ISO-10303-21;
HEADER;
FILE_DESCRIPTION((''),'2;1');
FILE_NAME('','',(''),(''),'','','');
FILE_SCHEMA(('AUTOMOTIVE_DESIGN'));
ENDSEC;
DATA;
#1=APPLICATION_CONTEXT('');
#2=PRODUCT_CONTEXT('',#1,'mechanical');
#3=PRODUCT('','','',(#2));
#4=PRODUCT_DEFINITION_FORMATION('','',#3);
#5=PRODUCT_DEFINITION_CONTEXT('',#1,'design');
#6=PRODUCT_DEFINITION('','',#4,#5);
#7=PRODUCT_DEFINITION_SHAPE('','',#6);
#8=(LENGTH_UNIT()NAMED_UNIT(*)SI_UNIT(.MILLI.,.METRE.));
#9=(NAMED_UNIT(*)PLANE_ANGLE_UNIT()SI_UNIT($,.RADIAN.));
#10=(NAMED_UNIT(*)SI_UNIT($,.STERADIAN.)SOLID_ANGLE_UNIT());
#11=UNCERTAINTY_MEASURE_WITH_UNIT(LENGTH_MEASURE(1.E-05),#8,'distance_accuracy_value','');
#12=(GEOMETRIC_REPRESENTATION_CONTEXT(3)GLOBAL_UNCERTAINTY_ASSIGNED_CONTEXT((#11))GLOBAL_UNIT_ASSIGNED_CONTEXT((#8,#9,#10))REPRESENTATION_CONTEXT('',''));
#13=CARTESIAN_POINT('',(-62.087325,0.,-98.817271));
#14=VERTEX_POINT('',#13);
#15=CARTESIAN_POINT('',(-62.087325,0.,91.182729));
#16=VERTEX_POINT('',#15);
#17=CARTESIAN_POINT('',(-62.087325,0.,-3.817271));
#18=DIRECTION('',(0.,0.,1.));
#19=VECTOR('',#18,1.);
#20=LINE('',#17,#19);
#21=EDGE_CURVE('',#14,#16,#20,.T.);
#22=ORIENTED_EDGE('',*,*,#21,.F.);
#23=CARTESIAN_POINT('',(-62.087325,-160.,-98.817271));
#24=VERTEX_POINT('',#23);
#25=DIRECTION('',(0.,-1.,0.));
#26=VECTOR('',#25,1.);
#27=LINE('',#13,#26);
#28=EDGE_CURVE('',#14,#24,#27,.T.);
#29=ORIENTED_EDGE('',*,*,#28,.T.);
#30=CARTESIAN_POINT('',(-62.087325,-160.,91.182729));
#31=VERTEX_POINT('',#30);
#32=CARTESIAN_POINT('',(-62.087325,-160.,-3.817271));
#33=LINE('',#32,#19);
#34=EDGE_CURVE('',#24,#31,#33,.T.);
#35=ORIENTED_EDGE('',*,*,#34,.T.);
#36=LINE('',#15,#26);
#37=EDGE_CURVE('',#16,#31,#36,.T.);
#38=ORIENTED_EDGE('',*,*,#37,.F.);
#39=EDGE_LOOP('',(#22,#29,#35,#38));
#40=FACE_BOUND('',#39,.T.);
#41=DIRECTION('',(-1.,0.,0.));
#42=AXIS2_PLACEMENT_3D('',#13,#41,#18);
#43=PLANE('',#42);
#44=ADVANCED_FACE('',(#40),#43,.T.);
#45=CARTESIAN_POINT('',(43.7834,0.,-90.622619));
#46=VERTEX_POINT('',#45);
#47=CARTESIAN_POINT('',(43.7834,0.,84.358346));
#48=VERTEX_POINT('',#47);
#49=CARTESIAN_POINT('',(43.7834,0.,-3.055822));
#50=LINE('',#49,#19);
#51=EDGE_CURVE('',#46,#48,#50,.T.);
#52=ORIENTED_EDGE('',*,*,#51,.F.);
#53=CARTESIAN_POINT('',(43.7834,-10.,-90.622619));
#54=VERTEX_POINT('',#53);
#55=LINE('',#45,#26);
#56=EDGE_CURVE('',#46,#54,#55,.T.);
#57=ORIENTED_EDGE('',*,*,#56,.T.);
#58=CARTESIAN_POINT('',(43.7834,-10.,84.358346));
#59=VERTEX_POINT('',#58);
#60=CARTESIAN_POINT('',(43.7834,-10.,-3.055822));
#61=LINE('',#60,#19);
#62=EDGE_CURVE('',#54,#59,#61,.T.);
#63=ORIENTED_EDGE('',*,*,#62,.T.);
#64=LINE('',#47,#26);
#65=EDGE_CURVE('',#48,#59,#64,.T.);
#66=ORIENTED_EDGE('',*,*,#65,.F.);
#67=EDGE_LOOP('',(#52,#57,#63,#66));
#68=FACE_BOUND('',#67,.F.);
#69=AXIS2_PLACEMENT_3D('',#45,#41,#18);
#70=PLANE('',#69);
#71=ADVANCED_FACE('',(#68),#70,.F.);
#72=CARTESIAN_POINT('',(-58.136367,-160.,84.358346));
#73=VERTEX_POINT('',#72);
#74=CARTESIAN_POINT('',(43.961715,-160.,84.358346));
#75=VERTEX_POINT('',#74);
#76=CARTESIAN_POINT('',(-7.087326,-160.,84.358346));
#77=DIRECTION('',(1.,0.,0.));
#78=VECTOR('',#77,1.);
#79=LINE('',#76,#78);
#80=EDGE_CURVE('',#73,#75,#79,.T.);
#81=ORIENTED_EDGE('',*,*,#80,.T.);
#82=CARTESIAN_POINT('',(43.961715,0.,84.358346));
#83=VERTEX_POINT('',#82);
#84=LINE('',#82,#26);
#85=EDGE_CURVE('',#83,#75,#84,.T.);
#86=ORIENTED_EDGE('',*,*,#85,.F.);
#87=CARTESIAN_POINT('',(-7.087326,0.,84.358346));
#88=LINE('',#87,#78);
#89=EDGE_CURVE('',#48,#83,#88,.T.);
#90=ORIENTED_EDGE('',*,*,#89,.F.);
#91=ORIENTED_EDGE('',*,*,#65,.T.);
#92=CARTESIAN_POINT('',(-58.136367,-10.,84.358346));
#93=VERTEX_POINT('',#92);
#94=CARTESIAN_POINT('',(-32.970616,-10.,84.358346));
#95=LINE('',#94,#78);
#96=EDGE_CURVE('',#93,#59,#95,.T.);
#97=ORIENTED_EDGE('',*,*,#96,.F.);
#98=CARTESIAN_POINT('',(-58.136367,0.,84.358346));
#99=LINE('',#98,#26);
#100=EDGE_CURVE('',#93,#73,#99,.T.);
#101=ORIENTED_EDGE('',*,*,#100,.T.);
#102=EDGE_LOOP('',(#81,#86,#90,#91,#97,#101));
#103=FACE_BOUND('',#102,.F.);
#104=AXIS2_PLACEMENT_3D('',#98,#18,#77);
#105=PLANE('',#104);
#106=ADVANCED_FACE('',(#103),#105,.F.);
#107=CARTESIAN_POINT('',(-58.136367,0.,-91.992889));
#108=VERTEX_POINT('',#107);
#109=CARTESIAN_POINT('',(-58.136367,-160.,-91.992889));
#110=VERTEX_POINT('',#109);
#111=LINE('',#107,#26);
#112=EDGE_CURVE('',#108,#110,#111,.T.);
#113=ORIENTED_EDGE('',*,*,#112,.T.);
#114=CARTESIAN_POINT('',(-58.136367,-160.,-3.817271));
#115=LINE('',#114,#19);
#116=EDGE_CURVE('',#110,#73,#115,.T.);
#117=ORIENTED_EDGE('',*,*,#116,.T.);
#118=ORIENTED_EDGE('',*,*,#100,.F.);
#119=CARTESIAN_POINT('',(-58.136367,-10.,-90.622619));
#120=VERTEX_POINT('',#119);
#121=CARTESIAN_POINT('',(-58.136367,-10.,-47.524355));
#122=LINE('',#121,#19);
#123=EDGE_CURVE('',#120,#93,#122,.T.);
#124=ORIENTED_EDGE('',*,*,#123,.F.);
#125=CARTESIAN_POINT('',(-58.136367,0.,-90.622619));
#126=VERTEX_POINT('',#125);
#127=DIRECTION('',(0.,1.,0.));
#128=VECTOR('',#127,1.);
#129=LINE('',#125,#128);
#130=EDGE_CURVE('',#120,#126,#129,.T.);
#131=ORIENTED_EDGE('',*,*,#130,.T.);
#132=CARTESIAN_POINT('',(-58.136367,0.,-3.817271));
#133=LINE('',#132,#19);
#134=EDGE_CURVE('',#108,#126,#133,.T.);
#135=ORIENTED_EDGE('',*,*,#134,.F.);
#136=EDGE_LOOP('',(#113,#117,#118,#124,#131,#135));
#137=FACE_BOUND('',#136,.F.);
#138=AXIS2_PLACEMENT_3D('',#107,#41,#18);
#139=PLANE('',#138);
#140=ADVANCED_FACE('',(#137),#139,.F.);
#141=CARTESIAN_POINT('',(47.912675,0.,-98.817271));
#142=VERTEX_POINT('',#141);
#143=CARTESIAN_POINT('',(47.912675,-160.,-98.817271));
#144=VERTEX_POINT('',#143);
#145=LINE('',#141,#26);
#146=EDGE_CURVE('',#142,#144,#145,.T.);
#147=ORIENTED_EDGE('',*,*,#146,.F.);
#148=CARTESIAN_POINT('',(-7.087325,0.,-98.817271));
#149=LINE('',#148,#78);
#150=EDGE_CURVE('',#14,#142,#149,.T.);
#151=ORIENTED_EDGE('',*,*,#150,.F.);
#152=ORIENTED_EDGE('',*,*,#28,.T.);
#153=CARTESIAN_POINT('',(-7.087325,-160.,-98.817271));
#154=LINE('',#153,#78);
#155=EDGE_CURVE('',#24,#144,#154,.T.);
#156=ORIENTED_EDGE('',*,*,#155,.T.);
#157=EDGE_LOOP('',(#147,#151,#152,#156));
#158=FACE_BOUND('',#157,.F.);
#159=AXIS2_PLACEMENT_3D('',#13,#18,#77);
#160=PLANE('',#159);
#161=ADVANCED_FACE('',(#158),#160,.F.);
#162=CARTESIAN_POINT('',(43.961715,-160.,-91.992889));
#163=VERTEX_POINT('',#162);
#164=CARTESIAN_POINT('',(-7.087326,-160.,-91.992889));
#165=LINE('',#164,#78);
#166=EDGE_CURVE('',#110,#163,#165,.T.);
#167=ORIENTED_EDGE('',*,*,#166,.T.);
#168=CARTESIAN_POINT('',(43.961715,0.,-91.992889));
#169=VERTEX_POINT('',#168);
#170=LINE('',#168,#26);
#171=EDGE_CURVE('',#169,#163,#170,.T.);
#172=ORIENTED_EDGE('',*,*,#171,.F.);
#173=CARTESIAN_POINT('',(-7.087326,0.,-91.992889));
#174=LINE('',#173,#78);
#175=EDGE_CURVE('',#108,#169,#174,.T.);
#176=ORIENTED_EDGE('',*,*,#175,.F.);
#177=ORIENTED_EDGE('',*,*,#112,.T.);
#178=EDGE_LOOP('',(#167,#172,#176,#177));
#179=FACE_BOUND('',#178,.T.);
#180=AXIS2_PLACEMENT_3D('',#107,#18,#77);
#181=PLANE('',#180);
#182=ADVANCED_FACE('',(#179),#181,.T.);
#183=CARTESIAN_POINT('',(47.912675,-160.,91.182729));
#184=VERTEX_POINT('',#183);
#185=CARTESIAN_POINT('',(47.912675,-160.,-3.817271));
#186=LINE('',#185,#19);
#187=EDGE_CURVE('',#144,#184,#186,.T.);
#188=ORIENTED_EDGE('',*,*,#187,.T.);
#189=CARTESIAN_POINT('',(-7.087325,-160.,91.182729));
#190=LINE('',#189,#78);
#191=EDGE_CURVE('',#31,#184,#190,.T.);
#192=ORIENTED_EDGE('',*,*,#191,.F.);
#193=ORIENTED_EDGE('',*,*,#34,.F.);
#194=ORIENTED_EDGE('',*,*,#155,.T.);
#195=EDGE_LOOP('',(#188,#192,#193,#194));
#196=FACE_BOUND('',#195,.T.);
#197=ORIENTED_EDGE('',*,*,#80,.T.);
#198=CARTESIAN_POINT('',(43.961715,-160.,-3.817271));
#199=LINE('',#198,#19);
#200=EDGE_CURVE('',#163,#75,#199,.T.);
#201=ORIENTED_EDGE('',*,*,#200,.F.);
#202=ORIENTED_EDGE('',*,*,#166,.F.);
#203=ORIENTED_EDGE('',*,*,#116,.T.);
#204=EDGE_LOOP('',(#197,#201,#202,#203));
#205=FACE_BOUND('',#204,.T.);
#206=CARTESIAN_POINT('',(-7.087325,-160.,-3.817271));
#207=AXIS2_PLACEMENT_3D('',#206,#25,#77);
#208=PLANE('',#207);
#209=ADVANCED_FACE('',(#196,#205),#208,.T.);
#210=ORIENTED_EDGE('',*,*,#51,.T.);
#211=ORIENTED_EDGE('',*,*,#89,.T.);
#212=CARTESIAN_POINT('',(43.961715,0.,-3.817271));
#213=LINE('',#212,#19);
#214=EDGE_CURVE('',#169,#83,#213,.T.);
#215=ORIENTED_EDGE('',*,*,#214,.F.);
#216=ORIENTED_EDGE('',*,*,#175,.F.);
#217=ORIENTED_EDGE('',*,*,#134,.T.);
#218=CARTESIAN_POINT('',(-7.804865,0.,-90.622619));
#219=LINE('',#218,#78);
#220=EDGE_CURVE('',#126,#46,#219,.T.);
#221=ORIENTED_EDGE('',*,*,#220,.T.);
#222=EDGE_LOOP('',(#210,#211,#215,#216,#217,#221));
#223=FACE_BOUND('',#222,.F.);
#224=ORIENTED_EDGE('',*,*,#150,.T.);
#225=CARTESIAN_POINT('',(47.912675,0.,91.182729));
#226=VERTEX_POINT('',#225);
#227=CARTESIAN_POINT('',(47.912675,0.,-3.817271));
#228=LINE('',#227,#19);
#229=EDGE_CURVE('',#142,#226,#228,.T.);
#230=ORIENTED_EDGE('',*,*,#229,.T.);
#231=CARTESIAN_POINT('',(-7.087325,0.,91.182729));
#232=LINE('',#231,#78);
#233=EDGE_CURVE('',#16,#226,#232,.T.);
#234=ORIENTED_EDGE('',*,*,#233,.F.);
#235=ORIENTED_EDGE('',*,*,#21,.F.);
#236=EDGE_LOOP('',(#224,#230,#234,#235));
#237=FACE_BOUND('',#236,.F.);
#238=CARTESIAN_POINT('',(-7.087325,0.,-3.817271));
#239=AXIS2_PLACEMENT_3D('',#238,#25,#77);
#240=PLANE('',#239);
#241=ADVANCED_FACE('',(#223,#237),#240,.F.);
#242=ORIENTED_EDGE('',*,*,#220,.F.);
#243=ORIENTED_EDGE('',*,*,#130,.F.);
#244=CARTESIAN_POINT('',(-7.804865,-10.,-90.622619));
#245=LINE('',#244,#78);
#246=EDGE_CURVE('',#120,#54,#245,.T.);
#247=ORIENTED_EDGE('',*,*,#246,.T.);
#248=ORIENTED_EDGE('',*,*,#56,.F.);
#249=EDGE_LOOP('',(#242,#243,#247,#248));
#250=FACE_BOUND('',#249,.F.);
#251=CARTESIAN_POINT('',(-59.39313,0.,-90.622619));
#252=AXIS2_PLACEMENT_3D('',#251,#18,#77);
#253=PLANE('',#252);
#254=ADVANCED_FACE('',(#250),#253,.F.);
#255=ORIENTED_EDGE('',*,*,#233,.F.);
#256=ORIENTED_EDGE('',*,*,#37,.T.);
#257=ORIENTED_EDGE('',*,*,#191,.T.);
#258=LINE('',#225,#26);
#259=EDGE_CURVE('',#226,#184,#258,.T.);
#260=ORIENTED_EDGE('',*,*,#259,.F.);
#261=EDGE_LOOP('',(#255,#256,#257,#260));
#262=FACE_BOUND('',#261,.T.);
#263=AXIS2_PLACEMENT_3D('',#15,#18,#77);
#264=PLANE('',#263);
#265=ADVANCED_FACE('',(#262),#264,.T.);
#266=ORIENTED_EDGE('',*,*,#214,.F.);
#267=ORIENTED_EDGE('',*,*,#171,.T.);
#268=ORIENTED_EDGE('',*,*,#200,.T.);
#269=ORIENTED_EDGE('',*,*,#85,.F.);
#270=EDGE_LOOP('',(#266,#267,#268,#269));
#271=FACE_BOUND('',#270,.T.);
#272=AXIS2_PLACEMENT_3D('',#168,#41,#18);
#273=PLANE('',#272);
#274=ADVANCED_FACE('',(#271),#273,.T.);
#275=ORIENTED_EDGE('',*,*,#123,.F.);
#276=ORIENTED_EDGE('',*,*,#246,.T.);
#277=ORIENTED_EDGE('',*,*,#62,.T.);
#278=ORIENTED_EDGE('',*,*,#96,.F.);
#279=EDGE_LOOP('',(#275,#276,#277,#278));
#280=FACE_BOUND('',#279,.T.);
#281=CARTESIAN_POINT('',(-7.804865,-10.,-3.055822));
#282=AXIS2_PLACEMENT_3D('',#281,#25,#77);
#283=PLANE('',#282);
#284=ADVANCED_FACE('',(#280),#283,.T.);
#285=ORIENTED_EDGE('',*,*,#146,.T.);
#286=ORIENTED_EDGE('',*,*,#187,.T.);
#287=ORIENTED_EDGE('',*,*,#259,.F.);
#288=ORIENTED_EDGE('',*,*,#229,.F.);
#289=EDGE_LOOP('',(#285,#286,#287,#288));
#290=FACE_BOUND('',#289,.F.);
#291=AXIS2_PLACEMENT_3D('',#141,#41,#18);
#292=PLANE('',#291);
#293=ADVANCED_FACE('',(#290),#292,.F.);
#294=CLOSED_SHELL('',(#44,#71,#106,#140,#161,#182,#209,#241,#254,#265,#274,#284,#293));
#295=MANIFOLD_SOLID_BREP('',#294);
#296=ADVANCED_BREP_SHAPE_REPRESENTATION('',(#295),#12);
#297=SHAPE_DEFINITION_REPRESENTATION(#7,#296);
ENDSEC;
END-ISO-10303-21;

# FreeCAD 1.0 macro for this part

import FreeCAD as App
import Part
import Sketcher
Q = App.Units.Quantity

doc = App.newDocument("Part")
body = doc.addObject("PartDesign::Body", "Body")

sketch1 = doc.addObject("Sketcher::SketchObject", "Sketch")
body.addObject(sketch1)
sketch1.AttachmentSupport = (doc.XZ_Plane, [""])
sketch1.MapMode = "FlatFace"
sketch1.addGeometry([
    Part.LineSegment(App.Vector(-62.087325, 91.182729, 0), App.Vector(-62.087325, -98.817271, 0)),
    Part.LineSegment(App.Vector(-62.087325, -98.817271, 0), App.Vector(47.912675, -98.817271, 0)),
    Part.LineSegment(App.Vector(47.912675, -98.817271, 0), App.Vector(47.912675, 91.182729, 0)),
    Part.LineSegment(App.Vector(47.912675, 91.182729, 0), App.Vector(-62.087325, 91.182729, 0)),
    Part.LineSegment(App.Vector(43.961715, -91.992889, 0), App.Vector(-58.136367, -91.992889, 0)),
    Part.LineSegment(App.Vector(-58.136367, -91.992889, 0), App.Vector(-58.136367, 84.358346, 0)),
    Part.LineSegment(App.Vector(-58.136367, 84.358346, 0), App.Vector(43.961715, 84.358346, 0)),
    Part.LineSegment(App.Vector(43.961715, 84.358346, 0), App.Vector(43.961715, -91.992889, 0)),
], False)
sketch1.addConstraint([
    Sketcher.Constraint("Coincident", 0, 2, 1, 1),
    Sketcher.Constraint("Coincident", 1, 2, 2, 1),
    Sketcher.Constraint("Coincident", 2, 2, 3, 1),
    Sketcher.Constraint("Coincident", 3, 2, 0, 1),
    Sketcher.Constraint("Coincident", 4, 2, 5, 1),
    Sketcher.Constraint("Coincident", 5, 2, 6, 1),
    Sketcher.Constraint("Coincident", 6, 2, 7, 1),
    Sketcher.Constraint("Coincident", 7, 2, 4, 1),
    Sketcher.Constraint("Vertical", 0),
    Sketcher.Constraint("Horizontal", 1),
    Sketcher.Constraint("Vertical", 2),
    Sketcher.Constraint("Horizontal", 3),
    Sketcher.Constraint("Horizontal", 4),
    Sketcher.Constraint("Vertical", 5),
    Sketcher.Constraint("Horizontal", 6),
    Sketcher.Constraint("Vertical", 7),
    Sketcher.Constraint("DistanceX", 1, 1, 1, 2, Q("110 mm")),
    Sketcher.Constraint("DistanceY", 0, 2, 0, 1, Q("190 mm")),
    Sketcher.Constraint("DistanceX", 4, 2, 4, 1, Q("102.098083 mm")),
    Sketcher.Constraint("DistanceY", 5, 1, 5, 2, Q("176.351235 mm")),
    Sketcher.Constraint("DistanceY", 0, 2, -1, 1, Q("98.817271 mm")),
    Sketcher.Constraint("DistanceY", 4, 2, -1, 1, Q("91.992889 mm")),
    Sketcher.Constraint("DistanceX", 6, 2, 2, 2, Q("3.95096 mm")),
    Sketcher.Constraint("DistanceX", 0, 2, -1, 1, Q("62.087325 mm")),
])
pad1 = doc.addObject("PartDesign::Pad", "Pad")
body.addObject(pad1)
pad1.Profile = sketch1
pad1.Length = 160

sketch2 = doc.addObject("Sketcher::SketchObject", "Sketch001")
body.addObject(sketch2)
sketch2.AttachmentSupport = (doc.XZ_Plane, [""])
sketch2.MapMode = "FlatFace"
sketch2.addGeometry([
    Part.LineSegment(App.Vector(-59.39313, 84.510975, 0), App.Vector(-59.39313, -90.622619, 0)),
    Part.LineSegment(App.Vector(-59.39313, -90.622619, 0), App.Vector(43.7834, -90.622619, 0)),
    Part.LineSegment(App.Vector(43.7834, -90.622619, 0), App.Vector(43.7834, 84.510975, 0)),
    Part.LineSegment(App.Vector(43.7834, 84.510975, 0), App.Vector(-59.39313, 84.510975, 0)),
], False)
sketch2.addConstraint([
    Sketcher.Constraint("Coincident", 0, 2, 1, 1),
    Sketcher.Constraint("Coincident", 1, 2, 2, 1),
    Sketcher.Constraint("Coincident", 2, 2, 3, 1),
    Sketcher.Constraint("Coincident", 3, 2, 0, 1),
    Sketcher.Constraint("Vertical", 0),
    Sketcher.Constraint("Horizontal", 1),
    Sketcher.Constraint("Vertical", 2),
    Sketcher.Constraint("Horizontal", 3),
    Sketcher.Constraint("DistanceX", 1, 1, 1, 2, Q("103.17653 mm")),
    Sketcher.Constraint("DistanceX", -1, 1, 1, 2, Q("43.7834 mm")),
    Sketcher.Constraint("DistanceY", 0, 2, 0, 1, Q("175.133594 mm")),
    Sketcher.Constraint("DistanceY", 0, 2, -1, 1, Q("90.622619 mm")),
])
pad2 = doc.addObject("PartDesign::Pad", "Pad001")
body.addObject(pad2)
pad2.Profile = sketch2
pad2.Length = 10

doc.recompute()
